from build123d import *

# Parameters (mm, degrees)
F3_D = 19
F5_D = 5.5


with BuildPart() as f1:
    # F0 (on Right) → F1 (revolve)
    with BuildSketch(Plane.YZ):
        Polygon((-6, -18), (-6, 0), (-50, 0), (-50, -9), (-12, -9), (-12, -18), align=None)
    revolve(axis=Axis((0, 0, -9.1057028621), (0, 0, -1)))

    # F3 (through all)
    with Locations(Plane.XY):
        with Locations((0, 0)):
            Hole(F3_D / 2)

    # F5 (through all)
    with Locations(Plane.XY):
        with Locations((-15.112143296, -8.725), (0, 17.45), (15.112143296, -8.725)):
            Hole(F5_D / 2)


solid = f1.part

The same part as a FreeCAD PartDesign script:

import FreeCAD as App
import Part
import Sketcher
Q = App.Units.Quantity


def add_polygon(sketch, points):
    """Adds a closed chain of lines whose ends are joined by coincident constraints."""
    first, n = sketch.GeometryCount, len(points)
    for a, b in zip(points, points[1:] + points[:1]):
        sketch.addGeometry(Part.LineSegment(App.Vector(*a, 0), App.Vector(*b, 0)), False)
    for i in range(n):
        sketch.addConstraint(Sketcher.Constraint("Coincident", first + i, 2, first + (i + 1) % n, 1))

doc = App.newDocument("Part")
body = doc.addObject("PartDesign::Body", "Body")

sketch1 = doc.addObject("Sketcher::SketchObject", "Sketch")
body.addObject(sketch1)
sketch1.AttachmentSupport = (doc.YZ_Plane, [""])
sketch1.MapMode = "FlatFace"
add_polygon(sketch1, [(-6, -18), (-6, 0), (-50, 0), (-50, -9), (-12, -9), (-12, -18)])
sketch1.addConstraint([
    Sketcher.Constraint("Vertical", 0),
    Sketcher.Constraint("Horizontal", 1),
    Sketcher.Constraint("Vertical", 2),
    Sketcher.Constraint("Horizontal", 3),
    Sketcher.Constraint("Vertical", 4),
    Sketcher.Constraint("Horizontal", 5),
    Sketcher.Constraint("PointOnObject", 0, 2, -1),
    Sketcher.Constraint("Equal", 2, 4),
    Sketcher.Constraint("DistanceX", 1, 2, 1, 1, Q("44 mm")),
    Sketcher.Constraint("DistanceX", 3, 1, 3, 2, Q("38 mm")),
    Sketcher.Constraint("DistanceY", 0, 1, 0, 2, Q("18 mm")),
    Sketcher.Constraint("DistanceX", 0, 2, -1, 1, Q("6 mm")),
])
revolution = doc.addObject("PartDesign::Revolution", "Revolution")
body.addObject(revolution)
revolution.Profile = sketch1
revolution.ReferenceAxis = (sketch1, ["V_Axis"])
revolution.Angle = 360

sketch2 = doc.addObject("Sketcher::SketchObject", "Sketch001")
body.addObject(sketch2)
sketch2.AttachmentSupport = (doc.XY_Plane, [""])
sketch2.MapMode = "FlatFace"
sketch2.addGeometry(Part.Circle(App.Vector(0, 0, 0), App.Vector(0, 0, 1), 9.5), False)
sketch2.addConstraint([
    Sketcher.Constraint("Coincident", 0, 3, -1, 1),
    Sketcher.Constraint("Diameter", 0, Q("19 mm")),
])
doc.recompute()
hole = doc.addObject("PartDesign::Hole", "Hole")
body.addObject(hole)
hole.Profile = sketch2
hole.ThreadType = "None"
hole.Diameter = 19
hole.DepthType = "ThroughAll"

sketch3 = doc.addObject("Sketcher::SketchObject", "Sketch002")
body.addObject(sketch3)
sketch3.AttachmentSupport = (doc.XY_Plane, [""])
sketch3.MapMode = "FlatFace"
sketch3.addGeometry([
    Part.Circle(App.Vector(-15.112143, -8.725, 0), App.Vector(0, 0, 1), 2.75),
    Part.Circle(App.Vector(0, 17.45, 0), App.Vector(0, 0, 1), 2.75),
    Part.Circle(App.Vector(15.112143, -8.725, 0), App.Vector(0, 0, 1), 2.75),
], False)
sketch3.addConstraint([
    Sketcher.Constraint("Equal", 0, 1),
    Sketcher.Constraint("Equal", 1, 2),
    Sketcher.Constraint("Symmetric", 0, 3, 2, 3, -2),
    Sketcher.Constraint("PointOnObject", 1, 3, -2),
    Sketcher.Constraint("Diameter", 0, Q("5.5 mm")),
    Sketcher.Constraint("DistanceY", -1, 1, 1, 3, Q("17.45 mm")),
    Sketcher.Constraint("DistanceY", 0, 3, -1, 1, Q("8.725 mm")),
    Sketcher.Constraint("DistanceX", 0, 3, -1, 1, Q("15.112143 mm")),
])
doc.recompute()
hole2 = doc.addObject("PartDesign::Hole", "Hole001")
body.addObject(hole2)
hole2.Profile = sketch3
hole2.ThreadType = "None"
hole2.Diameter = 5.5
hole2.DepthType = "ThroughAll"

doc.recompute()
